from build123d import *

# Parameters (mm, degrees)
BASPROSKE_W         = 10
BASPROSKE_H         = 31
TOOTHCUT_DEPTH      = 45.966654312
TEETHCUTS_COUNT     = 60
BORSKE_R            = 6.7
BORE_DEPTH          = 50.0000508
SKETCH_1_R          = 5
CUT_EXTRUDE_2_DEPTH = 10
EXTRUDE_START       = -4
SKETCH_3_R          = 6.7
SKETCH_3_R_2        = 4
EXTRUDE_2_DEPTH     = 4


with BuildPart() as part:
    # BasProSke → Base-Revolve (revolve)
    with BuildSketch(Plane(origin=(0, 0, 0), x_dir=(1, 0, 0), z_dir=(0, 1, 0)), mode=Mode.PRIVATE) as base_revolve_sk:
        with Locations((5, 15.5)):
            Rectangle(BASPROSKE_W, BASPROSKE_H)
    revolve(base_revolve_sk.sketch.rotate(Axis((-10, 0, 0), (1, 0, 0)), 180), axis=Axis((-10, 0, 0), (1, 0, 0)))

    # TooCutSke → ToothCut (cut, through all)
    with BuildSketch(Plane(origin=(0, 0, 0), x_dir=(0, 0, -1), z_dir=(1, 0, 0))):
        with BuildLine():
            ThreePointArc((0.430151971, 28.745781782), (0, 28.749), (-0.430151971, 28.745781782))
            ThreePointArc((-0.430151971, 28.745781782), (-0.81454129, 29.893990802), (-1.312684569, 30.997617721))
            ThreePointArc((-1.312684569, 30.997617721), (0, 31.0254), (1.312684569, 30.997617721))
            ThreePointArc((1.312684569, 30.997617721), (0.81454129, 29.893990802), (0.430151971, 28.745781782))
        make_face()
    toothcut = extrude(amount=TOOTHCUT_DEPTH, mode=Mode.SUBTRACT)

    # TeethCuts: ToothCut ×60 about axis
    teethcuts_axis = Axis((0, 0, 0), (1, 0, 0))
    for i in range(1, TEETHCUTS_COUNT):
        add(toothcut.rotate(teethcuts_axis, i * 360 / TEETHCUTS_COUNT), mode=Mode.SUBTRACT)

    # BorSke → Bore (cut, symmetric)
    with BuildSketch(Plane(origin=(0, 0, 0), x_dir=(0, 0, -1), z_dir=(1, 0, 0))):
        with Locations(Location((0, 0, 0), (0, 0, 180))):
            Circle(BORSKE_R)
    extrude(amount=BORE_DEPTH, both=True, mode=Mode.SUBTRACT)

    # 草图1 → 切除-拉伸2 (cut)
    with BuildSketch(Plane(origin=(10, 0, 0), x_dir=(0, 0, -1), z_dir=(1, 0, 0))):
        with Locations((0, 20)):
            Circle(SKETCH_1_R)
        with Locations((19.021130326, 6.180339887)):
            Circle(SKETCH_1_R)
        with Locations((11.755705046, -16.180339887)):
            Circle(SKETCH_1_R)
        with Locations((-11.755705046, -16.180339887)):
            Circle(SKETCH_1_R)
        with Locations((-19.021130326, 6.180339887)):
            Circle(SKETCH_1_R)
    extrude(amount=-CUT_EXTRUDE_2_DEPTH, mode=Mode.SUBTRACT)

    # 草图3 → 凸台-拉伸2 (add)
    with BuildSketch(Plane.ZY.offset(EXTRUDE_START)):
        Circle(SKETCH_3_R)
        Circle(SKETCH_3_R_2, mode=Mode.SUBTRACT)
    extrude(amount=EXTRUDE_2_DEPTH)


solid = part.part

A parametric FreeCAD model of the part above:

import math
import FreeCAD as App
import Part
import Sketcher
from FreeCAD import Vector


def add_polygon(sketch, points):
    """Adds a closed chain of lines whose ends are joined by coincident constraints."""
    first, n = sketch.GeometryCount, len(points)
    for a, b in zip(points, points[1:] + points[:1]):
        sketch.addGeometry(Part.LineSegment(App.Vector(*a, 0), App.Vector(*b, 0)), False)
    for i in range(n):
        sketch.addConstraint(Sketcher.Constraint("Coincident", first + i, 2, first + (i + 1) % n, 1))

doc = App.newDocument("Part")
params = doc.addObject("Spreadsheet::Sheet", "Params")
for row, (alias, value) in enumerate([
    ("sketch1_width", "10 mm"),
    ("sketch1_height", "31 mm"),
    ("revolution_angle", "360 deg"),
    ("sketch2_radius", "12 mm"),
    ("sketch3_diameter", "13.4 mm"),
    ("pocket2_length", "100.000102 mm"),
    ("sketch4_diameter", "10 mm"),
    ("pocket3_length", "10 mm"),
    ("sketch5_diameter", "8 mm"),
    ("sketch5_diameter2", "13.4 mm"),
    ("pad1_length", "4 mm"),
], start=1):
    params.set(f"A{row}", alias)
    params.set(f"B{row}", "=" + value)
    params.setAlias(f"B{row}", alias)

body = doc.addObject("PartDesign::Body", "Body")

# Sketch on XZ plane
sketch1 = doc.addObject("Sketcher::SketchObject", "Sketch")
body.addObject(sketch1)
sketch1.AttachmentSupport = (doc.XZ_Plane, [""])
sketch1.MapMode = "FlatFace"
add_polygon(sketch1, [(0, -31), (0, 0), (10, 0), (10, -31)])  # lines 0-3
sketch1.addConstraint([
    Sketcher.Constraint("Vertical", 0),
    Sketcher.Constraint("Horizontal", 1),
    Sketcher.Constraint("Vertical", 2),
    Sketcher.Constraint("Horizontal", 3),
    Sketcher.Constraint("Coincident", 0, 2, -1, 1),
    Sketcher.Constraint("DistanceX", 1, 1, 1, 2, 10.0),
    Sketcher.Constraint("DistanceY", 0, 1, 0, 2, 31.0),
])
sketch1.setExpression("Constraints[9]", "Params.sketch1_width")
sketch1.setExpression("Constraints[10]", "Params.sketch1_height")
revolution = doc.addObject("PartDesign::Revolution", "Revolution")
body.addObject(revolution)
revolution.Profile = sketch1
revolution.ReferenceAxis = (sketch1, ["H_Axis"])
revolution.setExpression("Angle", "Params.revolution_angle")

# Sketch on YZ plane
sketch2 = doc.addObject("Sketcher::SketchObject", "Sketch001")
body.addObject(sketch2)
sketch2.AttachmentSupport = (doc.YZ_Plane, [""])
sketch2.MapMode = "FlatFace"
sketch2.addGeometry([
    Part.ArcOfCircle(Part.Circle(Vector(0.000004, 0, 0), Vector(0, 0, 1), 28.748996), math.radians(-0.85731), math.radians(0.85731)),
    Part.ArcOfCircle(Part.Circle(Vector(25.515264, -11.98713, 0), Vector(0, 0, 1), 12), math.radians(62.815145), math.radians(74.382749)),
    Part.ArcOfCircle(Part.Circle(Vector(0, 0, 0), Vector(0, 0, 1), 31.0254), math.radians(-2.424908), math.radians(2.424908)),
    Part.ArcOfCircle(Part.Circle(Vector(25.515264, 11.98713, 0), Vector(0, 0, 1), 12), math.radians(-74.382749), math.radians(-62.815145)),
], False)
sketch2.addConstraint([
    Sketcher.Constraint("Coincident", 0, 1, 1, 2),
    Sketcher.Constraint("Coincident", 1, 1, 2, 1),
    Sketcher.Constraint("Coincident", 2, 2, 3, 2),
    Sketcher.Constraint("Coincident", 3, 1, 0, 2),
    Sketcher.Constraint("Coincident", 0, 3, -1, 1),
    Sketcher.Constraint("Coincident", 2, 3, -1, 1),
    Sketcher.Constraint("Equal", 1, 3),
    Sketcher.Constraint("Symmetric", 1, 3, 3, 3, -1),
    Sketcher.Constraint("Radius", 1, 12.0),
    Sketcher.Constraint("Radius", 2, 31.0254),
    Sketcher.Constraint("Radius", 0, 28.748996),
    Sketcher.Constraint("DistanceY", 1, 3, -1, 1, 11.98713),
    Sketcher.Constraint("DistanceY", 0, 1, -1, 1, 0.430152),
])
sketch2.setExpression("Constraints[8]", "Params.sketch2_radius")
pocket1 = doc.addObject("PartDesign::Pocket", "Pocket")
body.addObject(pocket1)
pocket1.Profile = sketch2
pocket1.Type = "ThroughAll"
pocket1.Reversed = True
doc.recompute()

polarpattern = doc.addObject("PartDesign::PolarPattern", "PolarPattern")
body.addObject(polarpattern)
polarpattern.Originals = [pocket1]
polarpattern.Axis = (doc.X_Axis, [""])
polarpattern.Angle = 360
polarpattern.Occurrences = 60
body.Tip = polarpattern

# Sketch on YZ plane
sketch3 = doc.addObject("Sketcher::SketchObject", "Sketch002")
body.addObject(sketch3)
sketch3.AttachmentSupport = (doc.YZ_Plane, [""])
sketch3.MapMode = "FlatFace"
sketch3.addGeometry(Part.Circle(Vector(0, 0, 0), Vector(0, 0, 1), 6.7), False)
sketch3.addConstraint([
    Sketcher.Constraint("Coincident", 0, 3, -1, 1),
    Sketcher.Constraint("Diameter", 0, 13.4),
])
sketch3.setExpression("Constraints[1]", "Params.sketch3_diameter")
pocket2 = doc.addObject("PartDesign::Pocket", "Pocket001")
body.addObject(pocket2)
pocket2.Profile = sketch3
pocket2.setExpression("Length", "Params.pocket2_length")
pocket2.Midplane = True

# Sketch on YZ plane
sketch4 = doc.addObject("Sketcher::SketchObject", "Sketch003")
body.addObject(sketch4)
sketch4.AttachmentSupport = (doc.YZ_Plane, [""])
sketch4.MapMode = "FlatFace"
sketch4.AttachmentOffset = App.Placement(Vector(0, 0, 10), App.Rotation())
sketch4.addGeometry([
    Part.Circle(Vector(20, 0, 0), Vector(0, 0, 1), 5),  # 0
    Part.Circle(Vector(6.18034, -19.02113, 0), Vector(0, 0, 1), 5),  # 1
    Part.Circle(Vector(-16.18034, -11.755705, 0), Vector(0, 0, 1), 5),  # 2
    Part.Circle(Vector(-16.18034, 11.755705, 0), Vector(0, 0, 1), 5),  # 3
    Part.Circle(Vector(6.18034, 19.02113, 0), Vector(0, 0, 1), 5),  # 4
], False)
sketch4.addConstraint([
    Sketcher.Constraint("Equal", 0, 1),
    Sketcher.Constraint("Equal", 1, 2),
    Sketcher.Constraint("Equal", 2, 3),
    Sketcher.Constraint("Equal", 3, 4),
    Sketcher.Constraint("Symmetric", 2, 3, 3, 3, -1),
    Sketcher.Constraint("Symmetric", 1, 3, 4, 3, -1),
    Sketcher.Constraint("PointOnObject", 0, 3, -1),
    Sketcher.Constraint("Diameter", 0, 10.0),
    Sketcher.Constraint("DistanceX", -1, 1, 0, 3, 20.0),
    Sketcher.Constraint("DistanceX", -1, 1, 1, 3, 6.18034),
    Sketcher.Constraint("DistanceY", 1, 3, -1, 1, 19.02113),
    Sketcher.Constraint("DistanceX", 2, 3, -1, 1, 16.18034),
    Sketcher.Constraint("DistanceY", 2, 3, 3, 3, 23.51141),
])
sketch4.setExpression("Constraints[7]", "Params.sketch4_diameter")
pocket3 = doc.addObject("PartDesign::Pocket", "Pocket002")
body.addObject(pocket3)
pocket3.Profile = sketch4
pocket3.setExpression("Length", "Params.pocket3_length")

# Sketch on YZ plane
sketch5 = doc.addObject("Sketcher::SketchObject", "Sketch004")
body.addObject(sketch5)
sketch5.AttachmentSupport = (doc.YZ_Plane, [""])
sketch5.MapMode = "FlatFace"
sketch5.AttachmentOffset = App.Placement(Vector(0, 0, 4), App.Rotation())
sketch5.addGeometry([
    Part.Circle(Vector(0, 0, 0), Vector(0, 0, 1), 6.7),
    Part.Circle(Vector(0, 0, 0), Vector(0, 0, 1), 4),
], False)
sketch5.addConstraint([
    Sketcher.Constraint("Coincident", 0, 3, -1, 1),
    Sketcher.Constraint("Coincident", 1, 3, -1, 1),
    Sketcher.Constraint("Diameter", 1, 8.0),
    Sketcher.Constraint("Diameter", 0, 13.4),
])
sketch5.setExpression("Constraints[2]", "Params.sketch5_diameter")
sketch5.setExpression("Constraints[3]", "Params.sketch5_diameter2")
pad1 = doc.addObject("PartDesign::Pad", "Pad")
body.addObject(pad1)
pad1.Profile = sketch5
pad1.setExpression("Length", "Params.pad1_length")
pad1.Reversed = True

doc.recompute()
